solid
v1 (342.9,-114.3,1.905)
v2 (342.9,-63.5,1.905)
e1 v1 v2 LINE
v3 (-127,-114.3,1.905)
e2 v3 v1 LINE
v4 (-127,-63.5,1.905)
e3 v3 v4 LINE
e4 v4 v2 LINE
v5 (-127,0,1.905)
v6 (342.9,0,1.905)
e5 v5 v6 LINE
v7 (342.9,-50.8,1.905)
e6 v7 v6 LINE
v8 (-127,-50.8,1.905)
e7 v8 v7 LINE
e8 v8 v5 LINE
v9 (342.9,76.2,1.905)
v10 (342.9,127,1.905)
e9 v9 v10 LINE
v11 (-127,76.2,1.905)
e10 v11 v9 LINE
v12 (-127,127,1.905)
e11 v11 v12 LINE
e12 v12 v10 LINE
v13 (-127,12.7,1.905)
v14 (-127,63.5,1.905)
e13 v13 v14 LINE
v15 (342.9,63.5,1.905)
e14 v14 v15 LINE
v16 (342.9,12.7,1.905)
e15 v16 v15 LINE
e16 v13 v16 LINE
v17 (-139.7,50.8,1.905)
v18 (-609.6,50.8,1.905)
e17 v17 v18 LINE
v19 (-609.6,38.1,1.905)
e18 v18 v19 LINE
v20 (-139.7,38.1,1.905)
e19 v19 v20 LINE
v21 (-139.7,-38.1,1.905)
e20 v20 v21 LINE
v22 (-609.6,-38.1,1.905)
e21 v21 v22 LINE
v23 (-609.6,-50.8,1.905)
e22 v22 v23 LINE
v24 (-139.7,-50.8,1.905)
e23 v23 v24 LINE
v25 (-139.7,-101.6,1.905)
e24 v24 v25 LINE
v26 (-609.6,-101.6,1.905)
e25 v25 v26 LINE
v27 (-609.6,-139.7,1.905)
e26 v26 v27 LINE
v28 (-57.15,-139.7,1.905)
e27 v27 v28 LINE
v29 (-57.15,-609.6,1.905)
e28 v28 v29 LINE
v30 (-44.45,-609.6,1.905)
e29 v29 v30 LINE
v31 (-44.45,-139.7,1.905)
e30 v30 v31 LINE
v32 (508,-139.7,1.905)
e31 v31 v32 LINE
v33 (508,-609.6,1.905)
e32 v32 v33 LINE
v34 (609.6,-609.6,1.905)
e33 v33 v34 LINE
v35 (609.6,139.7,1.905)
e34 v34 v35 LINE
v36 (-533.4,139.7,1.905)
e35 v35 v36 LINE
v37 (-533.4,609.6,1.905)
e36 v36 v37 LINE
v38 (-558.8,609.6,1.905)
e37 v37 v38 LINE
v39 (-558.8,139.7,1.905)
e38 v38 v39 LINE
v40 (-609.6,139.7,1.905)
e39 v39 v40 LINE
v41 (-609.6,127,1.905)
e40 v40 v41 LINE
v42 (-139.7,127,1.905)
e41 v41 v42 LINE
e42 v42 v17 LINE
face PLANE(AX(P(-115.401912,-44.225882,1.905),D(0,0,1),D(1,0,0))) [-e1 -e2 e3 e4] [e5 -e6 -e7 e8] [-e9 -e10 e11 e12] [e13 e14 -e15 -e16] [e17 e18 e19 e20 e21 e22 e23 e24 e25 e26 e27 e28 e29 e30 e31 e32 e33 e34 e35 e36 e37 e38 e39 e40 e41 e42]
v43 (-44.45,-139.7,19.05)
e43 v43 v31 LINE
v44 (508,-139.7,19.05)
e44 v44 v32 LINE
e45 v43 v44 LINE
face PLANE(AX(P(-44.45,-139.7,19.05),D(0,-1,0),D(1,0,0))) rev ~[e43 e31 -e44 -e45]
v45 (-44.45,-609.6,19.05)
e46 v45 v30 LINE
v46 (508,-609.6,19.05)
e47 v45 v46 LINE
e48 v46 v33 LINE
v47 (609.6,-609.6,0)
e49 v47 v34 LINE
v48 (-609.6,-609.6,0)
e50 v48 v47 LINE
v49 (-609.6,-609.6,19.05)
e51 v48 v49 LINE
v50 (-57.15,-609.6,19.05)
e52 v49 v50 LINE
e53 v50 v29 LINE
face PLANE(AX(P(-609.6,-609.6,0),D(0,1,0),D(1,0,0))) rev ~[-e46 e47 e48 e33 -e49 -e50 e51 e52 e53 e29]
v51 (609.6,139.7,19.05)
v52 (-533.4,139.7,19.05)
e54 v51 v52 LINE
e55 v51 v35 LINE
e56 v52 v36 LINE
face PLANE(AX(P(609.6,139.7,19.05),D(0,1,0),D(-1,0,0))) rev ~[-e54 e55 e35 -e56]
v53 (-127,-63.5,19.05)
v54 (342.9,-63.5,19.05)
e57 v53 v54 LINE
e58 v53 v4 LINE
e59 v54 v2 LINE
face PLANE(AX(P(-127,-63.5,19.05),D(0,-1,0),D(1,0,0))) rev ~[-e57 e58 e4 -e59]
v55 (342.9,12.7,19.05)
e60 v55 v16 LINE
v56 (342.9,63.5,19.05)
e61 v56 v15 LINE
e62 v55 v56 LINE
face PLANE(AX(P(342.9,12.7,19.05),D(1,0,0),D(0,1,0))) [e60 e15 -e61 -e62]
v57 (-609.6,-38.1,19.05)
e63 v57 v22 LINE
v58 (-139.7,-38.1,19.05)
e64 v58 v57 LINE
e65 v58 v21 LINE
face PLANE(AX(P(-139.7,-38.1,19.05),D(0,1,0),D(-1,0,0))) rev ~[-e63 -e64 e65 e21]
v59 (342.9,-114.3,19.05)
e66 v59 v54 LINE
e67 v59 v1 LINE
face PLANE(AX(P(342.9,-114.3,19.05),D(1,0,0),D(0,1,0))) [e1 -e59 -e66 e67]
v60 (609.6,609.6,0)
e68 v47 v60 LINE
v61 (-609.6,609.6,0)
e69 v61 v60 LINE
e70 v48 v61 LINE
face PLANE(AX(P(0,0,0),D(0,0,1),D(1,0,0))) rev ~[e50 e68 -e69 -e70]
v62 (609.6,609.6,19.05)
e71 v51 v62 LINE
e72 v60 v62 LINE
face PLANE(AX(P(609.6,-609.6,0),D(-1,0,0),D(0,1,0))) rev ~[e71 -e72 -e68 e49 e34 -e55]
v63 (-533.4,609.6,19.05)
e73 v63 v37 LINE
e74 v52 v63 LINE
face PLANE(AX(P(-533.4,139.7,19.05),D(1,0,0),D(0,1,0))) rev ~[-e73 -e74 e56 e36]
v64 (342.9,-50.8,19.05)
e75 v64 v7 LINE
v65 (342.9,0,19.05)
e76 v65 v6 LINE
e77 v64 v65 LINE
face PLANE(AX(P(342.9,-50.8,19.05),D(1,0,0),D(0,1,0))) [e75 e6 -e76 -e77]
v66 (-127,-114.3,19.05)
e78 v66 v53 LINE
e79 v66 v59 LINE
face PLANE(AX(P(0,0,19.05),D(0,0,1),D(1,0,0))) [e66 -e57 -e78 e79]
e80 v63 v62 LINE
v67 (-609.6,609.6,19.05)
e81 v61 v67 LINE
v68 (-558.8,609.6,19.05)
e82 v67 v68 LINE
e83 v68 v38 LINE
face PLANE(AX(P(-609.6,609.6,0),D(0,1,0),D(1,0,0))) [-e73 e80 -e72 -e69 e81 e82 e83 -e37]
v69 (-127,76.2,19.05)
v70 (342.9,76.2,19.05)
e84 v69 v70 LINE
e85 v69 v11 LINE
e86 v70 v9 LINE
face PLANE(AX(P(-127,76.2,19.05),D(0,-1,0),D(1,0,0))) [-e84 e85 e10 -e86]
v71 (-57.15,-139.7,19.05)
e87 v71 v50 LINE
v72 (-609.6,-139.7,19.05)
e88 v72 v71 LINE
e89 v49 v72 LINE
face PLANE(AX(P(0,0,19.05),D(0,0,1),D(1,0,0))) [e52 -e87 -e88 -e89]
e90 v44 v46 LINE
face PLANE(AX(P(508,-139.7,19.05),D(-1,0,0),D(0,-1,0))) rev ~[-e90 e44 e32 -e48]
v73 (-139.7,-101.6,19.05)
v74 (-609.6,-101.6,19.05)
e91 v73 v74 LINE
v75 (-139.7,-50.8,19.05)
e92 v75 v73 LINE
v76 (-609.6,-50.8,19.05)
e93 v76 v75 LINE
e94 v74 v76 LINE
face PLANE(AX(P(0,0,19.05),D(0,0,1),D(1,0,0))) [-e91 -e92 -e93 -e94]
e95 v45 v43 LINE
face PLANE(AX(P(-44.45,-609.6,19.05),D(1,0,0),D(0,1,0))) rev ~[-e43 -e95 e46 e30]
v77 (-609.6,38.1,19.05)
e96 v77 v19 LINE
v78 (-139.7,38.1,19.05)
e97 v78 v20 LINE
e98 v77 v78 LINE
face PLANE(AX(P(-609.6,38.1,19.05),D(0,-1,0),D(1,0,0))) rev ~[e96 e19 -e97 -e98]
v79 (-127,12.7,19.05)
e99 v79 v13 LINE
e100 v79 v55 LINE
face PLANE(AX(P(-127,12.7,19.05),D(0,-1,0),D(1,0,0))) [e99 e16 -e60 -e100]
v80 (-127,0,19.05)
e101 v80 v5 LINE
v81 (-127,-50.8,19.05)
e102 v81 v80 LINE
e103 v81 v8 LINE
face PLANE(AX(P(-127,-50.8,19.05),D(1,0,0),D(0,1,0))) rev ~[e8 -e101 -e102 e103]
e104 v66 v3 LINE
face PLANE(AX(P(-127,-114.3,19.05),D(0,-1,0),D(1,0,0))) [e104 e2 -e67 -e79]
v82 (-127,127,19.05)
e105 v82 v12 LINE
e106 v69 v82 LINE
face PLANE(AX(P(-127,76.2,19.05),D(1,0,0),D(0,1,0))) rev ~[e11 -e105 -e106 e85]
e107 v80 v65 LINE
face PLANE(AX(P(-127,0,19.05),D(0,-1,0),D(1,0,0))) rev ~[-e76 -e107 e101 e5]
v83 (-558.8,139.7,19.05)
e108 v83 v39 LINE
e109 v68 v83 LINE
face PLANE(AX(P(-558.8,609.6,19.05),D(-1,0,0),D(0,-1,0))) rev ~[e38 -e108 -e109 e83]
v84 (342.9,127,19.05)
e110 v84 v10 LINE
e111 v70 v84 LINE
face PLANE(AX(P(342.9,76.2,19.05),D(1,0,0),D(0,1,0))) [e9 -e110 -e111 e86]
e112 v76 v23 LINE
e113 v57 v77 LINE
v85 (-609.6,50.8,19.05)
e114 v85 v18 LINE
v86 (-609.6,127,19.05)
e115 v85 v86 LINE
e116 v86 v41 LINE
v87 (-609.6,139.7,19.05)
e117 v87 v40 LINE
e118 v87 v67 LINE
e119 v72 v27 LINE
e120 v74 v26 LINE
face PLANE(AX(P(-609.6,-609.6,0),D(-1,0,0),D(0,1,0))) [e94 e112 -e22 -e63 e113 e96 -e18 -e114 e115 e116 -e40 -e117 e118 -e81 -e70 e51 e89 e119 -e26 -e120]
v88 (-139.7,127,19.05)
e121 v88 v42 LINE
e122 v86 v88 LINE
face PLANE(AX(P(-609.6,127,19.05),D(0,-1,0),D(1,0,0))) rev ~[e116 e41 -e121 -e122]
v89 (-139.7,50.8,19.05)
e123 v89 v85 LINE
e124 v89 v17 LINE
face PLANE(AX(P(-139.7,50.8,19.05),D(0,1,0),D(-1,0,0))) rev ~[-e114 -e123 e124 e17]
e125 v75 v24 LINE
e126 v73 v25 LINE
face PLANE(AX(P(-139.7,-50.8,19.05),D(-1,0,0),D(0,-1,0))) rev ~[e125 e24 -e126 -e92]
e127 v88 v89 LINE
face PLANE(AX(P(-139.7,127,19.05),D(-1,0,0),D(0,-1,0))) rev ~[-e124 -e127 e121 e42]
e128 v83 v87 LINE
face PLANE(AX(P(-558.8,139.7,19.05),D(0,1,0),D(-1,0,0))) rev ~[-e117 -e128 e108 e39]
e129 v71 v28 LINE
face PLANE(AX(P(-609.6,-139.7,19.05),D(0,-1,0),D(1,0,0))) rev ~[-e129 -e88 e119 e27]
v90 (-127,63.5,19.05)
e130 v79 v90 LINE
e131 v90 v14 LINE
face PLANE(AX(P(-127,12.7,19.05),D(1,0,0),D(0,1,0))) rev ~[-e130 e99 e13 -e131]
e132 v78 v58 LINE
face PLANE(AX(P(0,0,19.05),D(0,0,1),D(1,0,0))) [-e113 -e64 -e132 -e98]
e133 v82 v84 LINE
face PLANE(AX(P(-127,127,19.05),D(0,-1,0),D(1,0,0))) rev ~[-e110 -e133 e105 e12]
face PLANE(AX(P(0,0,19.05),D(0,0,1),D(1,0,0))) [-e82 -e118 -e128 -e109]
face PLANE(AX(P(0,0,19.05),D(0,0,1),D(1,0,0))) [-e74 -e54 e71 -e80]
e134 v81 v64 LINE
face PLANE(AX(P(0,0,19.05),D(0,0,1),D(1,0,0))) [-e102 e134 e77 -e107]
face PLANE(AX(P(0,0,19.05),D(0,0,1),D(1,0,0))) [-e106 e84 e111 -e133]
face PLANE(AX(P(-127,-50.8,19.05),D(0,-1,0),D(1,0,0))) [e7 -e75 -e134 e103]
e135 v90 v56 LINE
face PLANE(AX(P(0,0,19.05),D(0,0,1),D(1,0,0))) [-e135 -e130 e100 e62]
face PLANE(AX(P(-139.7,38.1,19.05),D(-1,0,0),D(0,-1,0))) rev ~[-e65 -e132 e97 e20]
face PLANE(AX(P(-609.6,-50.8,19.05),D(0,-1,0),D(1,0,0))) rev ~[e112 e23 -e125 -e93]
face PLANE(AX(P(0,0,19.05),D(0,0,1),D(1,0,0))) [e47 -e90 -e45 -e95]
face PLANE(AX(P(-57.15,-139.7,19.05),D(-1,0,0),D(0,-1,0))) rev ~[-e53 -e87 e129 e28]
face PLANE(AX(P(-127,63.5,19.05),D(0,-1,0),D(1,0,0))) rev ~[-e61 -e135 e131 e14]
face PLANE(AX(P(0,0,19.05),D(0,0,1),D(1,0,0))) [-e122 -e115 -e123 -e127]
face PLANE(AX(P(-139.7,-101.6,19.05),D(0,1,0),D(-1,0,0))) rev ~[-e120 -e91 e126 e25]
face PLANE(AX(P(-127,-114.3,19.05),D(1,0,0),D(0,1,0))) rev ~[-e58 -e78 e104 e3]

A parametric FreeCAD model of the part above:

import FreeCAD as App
import Part
import Sketcher
from FreeCAD import Vector
Q = App.Units.Quantity

doc = App.newDocument("Part")
body = doc.addObject("PartDesign::Body", "Body")

# Sketch on XY plane
sketch1 = body.newObject("Sketcher::SketchObject", "Sketch")
sketch1.AttachmentSupport = (doc.getObject("XY_Plane"), [""])
sketch1.MapMode = "FlatFace"
sketch1.addGeometry([
    Part.LineSegment(Vector(-610, 610, 0), Vector(-610, -610, 0)),
    Part.LineSegment(Vector(-610, -610, 0), Vector(610, -610, 0)),
    Part.LineSegment(Vector(610, -610, 0), Vector(610, 610, 0)),
    Part.LineSegment(Vector(610, 610, 0), Vector(-610, 610, 0)),
], False)
sketch1.addConstraint([
    Sketcher.Constraint("Coincident", 0, 2, 1, 1),
    Sketcher.Constraint("Coincident", 1, 2, 2, 1),
    Sketcher.Constraint("Coincident", 2, 2, 3, 1),
    Sketcher.Constraint("Coincident", 3, 2, 0, 1),
    Sketcher.Constraint("Vertical", 0),
    Sketcher.Constraint("Horizontal", 1),
    Sketcher.Constraint("Vertical", 2),
    Sketcher.Constraint("Horizontal", 3),
    Sketcher.Constraint("Symmetric", 0, 2, 2, 2, -1, 1),
    Sketcher.Constraint("Equal", 3, 0),
    Sketcher.Constraint("DistanceX", 1, 1, 1, 2, Q("48 in")),
])
pad1 = body.newObject("PartDesign::Pad", "Pad")
pad1.Profile = sketch1
pad1.Length = Q("0.75 in")

# Sketch on XY plane
sketch2 = body.newObject("Sketcher::SketchObject", "Sketch001")
sketch2.AttachmentSupport = (doc.getObject("XY_Plane"), [""])
sketch2.MapMode = "FlatFace"
sketch2.AttachmentOffset = App.Placement(Vector(0, 0, 0.75 * 25.4), App.Rotation())
sketch2.addGeometry([
    Part.LineSegment(Vector(-533, 140, 0), Vector(-533, 610, 0)),  # 0
    Part.LineSegment(Vector(-533, 610, 0), Vector(-559, 610, 0)),  # 1
    Part.LineSegment(Vector(-559, 610, 0), Vector(-559, 140, 0)),  # 2
    Part.LineSegment(Vector(-559, 140, 0), Vector(-610, 140, 0)),  # 3
    Part.LineSegment(Vector(-610, 140, 0), Vector(-610, 127, 0)),  # 4
    Part.LineSegment(Vector(-610, 127, 0), Vector(-140, 127, 0)),  # 5
    Part.LineSegment(Vector(-140, 127, 0), Vector(-140, 51, 0)),  # 6
    Part.LineSegment(Vector(-140, 51, 0), Vector(-610, 51, 0)),  # 7
    Part.LineSegment(Vector(-610, 51, 0), Vector(-610, 38, 0)),  # 8
    Part.LineSegment(Vector(-610, 38, 0), Vector(-140, 38, 0)),  # 9
    Part.LineSegment(Vector(-140, 38, 0), Vector(-140, -38, 0)),  # 10
    Part.LineSegment(Vector(-140, -38, 0), Vector(-610, -38, 0)),  # 11
    Part.LineSegment(Vector(-610, -38, 0), Vector(-610, -51, 0)),  # 12
    Part.LineSegment(Vector(-610, -51, 0), Vector(-140, -51, 0)),  # 13
    Part.LineSegment(Vector(-140, -51, 0), Vector(-140, -102, 0)),  # 14
    Part.LineSegment(Vector(-140, -102, 0), Vector(-610, -102, 0)),  # 15
    Part.LineSegment(Vector(-610, -102, 0), Vector(-610, -140, 0)),  # 16
    Part.LineSegment(Vector(-610, -140, 0), Vector(-57, -140, 0)),  # 17
    Part.LineSegment(Vector(-57, -140, 0), Vector(-57, -610, 0)),  # 18
    Part.LineSegment(Vector(-57, -610, 0), Vector(-44, -610, 0)),  # 19
    Part.LineSegment(Vector(-44, -610, 0), Vector(-44, -140, 0)),  # 20
    Part.LineSegment(Vector(-44, -140, 0), Vector(508, -140, 0)),  # 21
    Part.LineSegment(Vector(508, -140, 0), Vector(508, -610, 0)),  # 22
    Part.LineSegment(Vector(508, -610, 0), Vector(610, -610, 0)),  # 23
    Part.LineSegment(Vector(610, -610, 0), Vector(610, 140, 0)),  # 24
    Part.LineSegment(Vector(610, 140, 0), Vector(-533, 140, 0)),  # 25
    Part.LineSegment(Vector(343, -114, 0), Vector(-127, -114, 0)),  # 26
    Part.LineSegment(Vector(-127, -114, 0), Vector(-127, -64, 0)),  # 27
    Part.LineSegment(Vector(-127, -64, 0), Vector(343, -64, 0)),  # 28
    Part.LineSegment(Vector(343, -64, 0), Vector(343, -114, 0)),  # 29
    Part.LineSegment(Vector(343, -51, 0), Vector(-127, -51, 0)),  # 30
    Part.LineSegment(Vector(-127, -51, 0), Vector(-127, 0, 0)),  # 31
    Part.LineSegment(Vector(-127, 0, 0), Vector(343, 0, 0)),  # 32
    Part.LineSegment(Vector(343, 0, 0), Vector(343, -51, 0)),  # 33
    Part.LineSegment(Vector(343, 13, 0), Vector(-127, 13, 0)),  # 34
    Part.LineSegment(Vector(-127, 13, 0), Vector(-127, 64, 0)),  # 35
    Part.LineSegment(Vector(-127, 64, 0), Vector(343, 64, 0)),  # 36
    Part.LineSegment(Vector(343, 64, 0), Vector(343, 13, 0)),  # 37
    Part.LineSegment(Vector(343, 76, 0), Vector(-127, 76, 0)),  # 38
    Part.LineSegment(Vector(-127, 76, 0), Vector(-127, 127, 0)),  # 39
    Part.LineSegment(Vector(-127, 127, 0), Vector(343, 127, 0)),  # 40
    Part.LineSegment(Vector(343, 127, 0), Vector(343, 76, 0)),  # 41
], False)
sketch2.addConstraint([
    Sketcher.Constraint("Coincident", 0, 2, 1, 1),
    Sketcher.Constraint("Coincident", 1, 2, 2, 1),
    Sketcher.Constraint("Coincident", 2, 2, 3, 1),
    Sketcher.Constraint("Coincident", 3, 2, 4, 1),
    Sketcher.Constraint("Coincident", 4, 2, 5, 1),
    Sketcher.Constraint("Coincident", 5, 2, 6, 1),
    Sketcher.Constraint("Coincident", 6, 2, 7, 1),
    Sketcher.Constraint("Coincident", 7, 2, 8, 1),
    Sketcher.Constraint("Coincident", 8, 2, 9, 1),
    Sketcher.Constraint("Coincident", 9, 2, 10, 1),
    Sketcher.Constraint("Coincident", 10, 2, 11, 1),
    Sketcher.Constraint("Coincident", 11, 2, 12, 1),
    Sketcher.Constraint("Coincident", 12, 2, 13, 1),
    Sketcher.Constraint("Coincident", 13, 2, 14, 1),
    Sketcher.Constraint("Coincident", 14, 2, 15, 1),
    Sketcher.Constraint("Coincident", 15, 2, 16, 1),
    Sketcher.Constraint("Coincident", 16, 2, 17, 1),
    Sketcher.Constraint("Coincident", 17, 2, 18, 1),
    Sketcher.Constraint("Coincident", 18, 2, 19, 1),
    Sketcher.Constraint("Coincident", 19, 2, 20, 1),
    Sketcher.Constraint("Coincident", 20, 2, 21, 1),
    Sketcher.Constraint("Coincident", 21, 2, 22, 1),
    Sketcher.Constraint("Coincident", 22, 2, 23, 1),
    Sketcher.Constraint("Coincident", 23, 2, 24, 1),
    Sketcher.Constraint("Coincident", 24, 2, 25, 1),
    Sketcher.Constraint("Coincident", 25, 2, 0, 1),
    Sketcher.Constraint("Coincident", 26, 2, 27, 1),
    Sketcher.Constraint("Coincident", 27, 2, 28, 1),
    Sketcher.Constraint("Coincident", 28, 2, 29, 1),
    Sketcher.Constraint("Coincident", 29, 2, 26, 1),
    Sketcher.Constraint("Coincident", 30, 2, 31, 1),
    Sketcher.Constraint("Coincident", 31, 2, 32, 1),
    Sketcher.Constraint("Coincident", 32, 2, 33, 1),
    Sketcher.Constraint("Coincident", 33, 2, 30, 1),
    Sketcher.Constraint("Coincident", 34, 2, 35, 1),
    Sketcher.Constraint("Coincident", 35, 2, 36, 1),
    Sketcher.Constraint("Coincident", 36, 2, 37, 1),
    Sketcher.Constraint("Coincident", 37, 2, 34, 1),
    Sketcher.Constraint("Coincident", 38, 2, 39, 1),
    Sketcher.Constraint("Coincident", 39, 2, 40, 1),
    Sketcher.Constraint("Coincident", 40, 2, 41, 1),
    Sketcher.Constraint("Coincident", 41, 2, 38, 1),
    Sketcher.Constraint("Vertical", 0),
    Sketcher.Constraint("Horizontal", 1),
    Sketcher.Constraint("Vertical", 2),
    Sketcher.Constraint("Horizontal", 3),
    Sketcher.Constraint("Vertical", 4),
    Sketcher.Constraint("Horizontal", 5),
    Sketcher.Constraint("Vertical", 6),
    Sketcher.Constraint("Horizontal", 7),
    Sketcher.Constraint("Vertical", 8),
    Sketcher.Constraint("Horizontal", 9),
    Sketcher.Constraint("Vertical", 10),
    Sketcher.Constraint("Horizontal", 11),
    Sketcher.Constraint("Vertical", 12),
    Sketcher.Constraint("Horizontal", 13),
    Sketcher.Constraint("Vertical", 14),
    Sketcher.Constraint("Horizontal", 15),
    Sketcher.Constraint("Vertical", 16),
    Sketcher.Constraint("Horizontal", 17),
    Sketcher.Constraint("Vertical", 18),
    Sketcher.Constraint("Horizontal", 19),
    Sketcher.Constraint("Vertical", 20),
    Sketcher.Constraint("Horizontal", 21),
    Sketcher.Constraint("Vertical", 22),
    Sketcher.Constraint("Horizontal", 23),
    Sketcher.Constraint("Vertical", 24),
    Sketcher.Constraint("Horizontal", 25),
    Sketcher.Constraint("Horizontal", 26),
    Sketcher.Constraint("Vertical", 27),
    Sketcher.Constraint("Horizontal", 28),
    Sketcher.Constraint("Vertical", 29),
    Sketcher.Constraint("Horizontal", 30),
    Sketcher.Constraint("Vertical", 31),
    Sketcher.Constraint("Horizontal", 32),
    Sketcher.Constraint("Vertical", 33),
    Sketcher.Constraint("Horizontal", 34),
    Sketcher.Constraint("Vertical", 35),
    Sketcher.Constraint("Horizontal", 36),
    Sketcher.Constraint("Vertical", 37),
    Sketcher.Constraint("Horizontal", 38),
    Sketcher.Constraint("Vertical", 39),
    Sketcher.Constraint("Horizontal", 40),
    Sketcher.Constraint("Vertical", 41),
    Sketcher.Constraint("Symmetric", 16, 2, 24, 2, -1, 1),
    Sketcher.Constraint("Symmetric", 3, 2, 24, 2, -2),
    Sketcher.Constraint("Symmetric", 8, 2, 11, 2, -1),
    Sketcher.Constraint("Symmetric", 6, 2, 13, 2, -1),
    Sketcher.Constraint("Symmetric", 27, 2, 35, 2, -1),
    Sketcher.Constraint("PointOnObject", 31, 2, -1),
    Sketcher.Constraint("Horizontal", 17, 2, 20, 2),
    Sketcher.Constraint("Horizontal", 19, 2, 22, 2),
    Sketcher.Constraint("Horizontal", 13, 2, 30, 2),
    Sketcher.Constraint("Horizontal", 5, 2, 39, 2),
    Sketcher.Constraint("Vertical", 4, 2, 7, 2),
    Sketcher.Constraint("Vertical", 6, 2, 9, 2),
    Sketcher.Constraint("Vertical", 27, 2, 30, 2),
    Sketcher.Constraint("Vertical", 29, 2, 32, 2),
    Sketcher.Constraint("Vertical", 33, 2, 36, 2),
    Sketcher.Constraint("Vertical", 35, 2, 38, 2),
    Sketcher.Constraint("Vertical", 37, 2, 40, 2),
    Sketcher.Constraint("Equal", 17, 21),
    Sketcher.Constraint("Equal", 15, 26),
    Sketcher.Constraint("Equal", 40, 0),
    Sketcher.Constraint("Equal", 19, 4),
    Sketcher.Constraint("Equal", 4, 8),
    Sketcher.Constraint("Equal", 6, 10),
    Sketcher.Constraint("Equal", 3, 14),
    Sketcher.Constraint("Equal", 2, 18),
    Sketcher.Constraint("Equal", 14, 27),
    Sketcher.Constraint("Equal", 29, 31),
    Sketcher.Constraint("Equal", 33, 35),
    Sketcher.Constraint("Equal", 37, 39),
    Sketcher.Constraint("DistanceX", 1, 2, 1, 1, Q("1 in")),
    Sketcher.Constraint("DistanceX", 3, 2, 3, 1, Q("2 in")),
    Sketcher.Constraint("DistanceX", 23, 1, 23, 2, Q("4 in")),
    Sketcher.Constraint("DistanceX", 25, 2, 25, 1, Q("45 in")),
    Sketcher.Constraint("DistanceY", 6, 2, 6, 1, Q("3 in")),
    Sketcher.Constraint("DistanceX", 5, 1, 5, 2, Q("18.5 in")),
    Sketcher.Constraint("DistanceX", 26, 2, -1, 1, Q("5 in")),
    Sketcher.Constraint("DistanceY", 17, 2, 26, 2, Q("1 in")),
])
pocket1 = body.newObject("PartDesign::Pocket", "Pocket")
pocket1.Profile = sketch2
pocket1.Length = Q("0.675 in")

doc.recompute()
